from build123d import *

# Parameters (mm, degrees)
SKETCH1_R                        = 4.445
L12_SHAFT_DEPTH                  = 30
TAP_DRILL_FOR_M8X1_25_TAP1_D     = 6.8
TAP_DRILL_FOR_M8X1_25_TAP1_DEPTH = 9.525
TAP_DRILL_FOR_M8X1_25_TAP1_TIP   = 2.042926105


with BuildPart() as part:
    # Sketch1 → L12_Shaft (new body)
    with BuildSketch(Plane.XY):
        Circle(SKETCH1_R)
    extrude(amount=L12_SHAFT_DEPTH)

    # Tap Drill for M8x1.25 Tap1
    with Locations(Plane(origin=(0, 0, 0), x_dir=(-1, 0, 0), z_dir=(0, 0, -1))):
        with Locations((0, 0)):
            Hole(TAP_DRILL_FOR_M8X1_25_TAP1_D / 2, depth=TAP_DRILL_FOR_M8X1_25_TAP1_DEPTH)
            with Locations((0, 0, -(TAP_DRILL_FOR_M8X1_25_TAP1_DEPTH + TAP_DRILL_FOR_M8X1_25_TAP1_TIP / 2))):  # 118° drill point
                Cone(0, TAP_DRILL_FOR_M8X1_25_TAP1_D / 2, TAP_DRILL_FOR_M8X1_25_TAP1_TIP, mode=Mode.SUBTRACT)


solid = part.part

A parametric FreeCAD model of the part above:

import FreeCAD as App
import Part
import Sketcher
from FreeCAD import Vector

doc = App.newDocument("Part")
body = doc.addObject("PartDesign::Body", "Body")

# Sketch on XY plane
sketch1 = body.newObject("Sketcher::SketchObject", "Sketch")
sketch1.AttachmentSupport = (doc.getObject("XY_Plane"), [""])
sketch1.MapMode = "FlatFace"
sketch1.addGeometry(Part.Circle(Vector(0, 0, 0), Vector(0, 0, 1), 4.445), False)
sketch1.addConstraint([
    Sketcher.Constraint("Coincident", 0, 3, -1, 1),
    Sketcher.Constraint("Diameter", 0, 8.89),
])
pad1 = body.newObject("PartDesign::Pad", "Pad")
pad1.Profile = sketch1
pad1.Length = 30

# Sketch on XY plane
sketch2 = body.newObject("Sketcher::SketchObject", "Sketch001")
sketch2.AttachmentSupport = (doc.getObject("XY_Plane"), [""])
sketch2.MapMode = "FlatFace"
sketch2.addGeometry(Part.Circle(Vector(0, 0, 0), Vector(0, 0, 1), 3.4), False)
sketch2.addConstraint([
    Sketcher.Constraint("Coincident", 0, 3, -1, 1),
    Sketcher.Constraint("Diameter", 0, 6.8),
])
doc.recompute()
hole = body.newObject("PartDesign::Hole", "Hole")
hole.Profile = sketch2
hole.ThreadType = "None"
hole.Diameter = 6.8
hole.DepthType = "Dimension"
hole.Depth = 9.525
hole.DrillPoint = "Angled"
hole.DrillPointAngle = 118
hole.Reversed = True

doc.recompute()
